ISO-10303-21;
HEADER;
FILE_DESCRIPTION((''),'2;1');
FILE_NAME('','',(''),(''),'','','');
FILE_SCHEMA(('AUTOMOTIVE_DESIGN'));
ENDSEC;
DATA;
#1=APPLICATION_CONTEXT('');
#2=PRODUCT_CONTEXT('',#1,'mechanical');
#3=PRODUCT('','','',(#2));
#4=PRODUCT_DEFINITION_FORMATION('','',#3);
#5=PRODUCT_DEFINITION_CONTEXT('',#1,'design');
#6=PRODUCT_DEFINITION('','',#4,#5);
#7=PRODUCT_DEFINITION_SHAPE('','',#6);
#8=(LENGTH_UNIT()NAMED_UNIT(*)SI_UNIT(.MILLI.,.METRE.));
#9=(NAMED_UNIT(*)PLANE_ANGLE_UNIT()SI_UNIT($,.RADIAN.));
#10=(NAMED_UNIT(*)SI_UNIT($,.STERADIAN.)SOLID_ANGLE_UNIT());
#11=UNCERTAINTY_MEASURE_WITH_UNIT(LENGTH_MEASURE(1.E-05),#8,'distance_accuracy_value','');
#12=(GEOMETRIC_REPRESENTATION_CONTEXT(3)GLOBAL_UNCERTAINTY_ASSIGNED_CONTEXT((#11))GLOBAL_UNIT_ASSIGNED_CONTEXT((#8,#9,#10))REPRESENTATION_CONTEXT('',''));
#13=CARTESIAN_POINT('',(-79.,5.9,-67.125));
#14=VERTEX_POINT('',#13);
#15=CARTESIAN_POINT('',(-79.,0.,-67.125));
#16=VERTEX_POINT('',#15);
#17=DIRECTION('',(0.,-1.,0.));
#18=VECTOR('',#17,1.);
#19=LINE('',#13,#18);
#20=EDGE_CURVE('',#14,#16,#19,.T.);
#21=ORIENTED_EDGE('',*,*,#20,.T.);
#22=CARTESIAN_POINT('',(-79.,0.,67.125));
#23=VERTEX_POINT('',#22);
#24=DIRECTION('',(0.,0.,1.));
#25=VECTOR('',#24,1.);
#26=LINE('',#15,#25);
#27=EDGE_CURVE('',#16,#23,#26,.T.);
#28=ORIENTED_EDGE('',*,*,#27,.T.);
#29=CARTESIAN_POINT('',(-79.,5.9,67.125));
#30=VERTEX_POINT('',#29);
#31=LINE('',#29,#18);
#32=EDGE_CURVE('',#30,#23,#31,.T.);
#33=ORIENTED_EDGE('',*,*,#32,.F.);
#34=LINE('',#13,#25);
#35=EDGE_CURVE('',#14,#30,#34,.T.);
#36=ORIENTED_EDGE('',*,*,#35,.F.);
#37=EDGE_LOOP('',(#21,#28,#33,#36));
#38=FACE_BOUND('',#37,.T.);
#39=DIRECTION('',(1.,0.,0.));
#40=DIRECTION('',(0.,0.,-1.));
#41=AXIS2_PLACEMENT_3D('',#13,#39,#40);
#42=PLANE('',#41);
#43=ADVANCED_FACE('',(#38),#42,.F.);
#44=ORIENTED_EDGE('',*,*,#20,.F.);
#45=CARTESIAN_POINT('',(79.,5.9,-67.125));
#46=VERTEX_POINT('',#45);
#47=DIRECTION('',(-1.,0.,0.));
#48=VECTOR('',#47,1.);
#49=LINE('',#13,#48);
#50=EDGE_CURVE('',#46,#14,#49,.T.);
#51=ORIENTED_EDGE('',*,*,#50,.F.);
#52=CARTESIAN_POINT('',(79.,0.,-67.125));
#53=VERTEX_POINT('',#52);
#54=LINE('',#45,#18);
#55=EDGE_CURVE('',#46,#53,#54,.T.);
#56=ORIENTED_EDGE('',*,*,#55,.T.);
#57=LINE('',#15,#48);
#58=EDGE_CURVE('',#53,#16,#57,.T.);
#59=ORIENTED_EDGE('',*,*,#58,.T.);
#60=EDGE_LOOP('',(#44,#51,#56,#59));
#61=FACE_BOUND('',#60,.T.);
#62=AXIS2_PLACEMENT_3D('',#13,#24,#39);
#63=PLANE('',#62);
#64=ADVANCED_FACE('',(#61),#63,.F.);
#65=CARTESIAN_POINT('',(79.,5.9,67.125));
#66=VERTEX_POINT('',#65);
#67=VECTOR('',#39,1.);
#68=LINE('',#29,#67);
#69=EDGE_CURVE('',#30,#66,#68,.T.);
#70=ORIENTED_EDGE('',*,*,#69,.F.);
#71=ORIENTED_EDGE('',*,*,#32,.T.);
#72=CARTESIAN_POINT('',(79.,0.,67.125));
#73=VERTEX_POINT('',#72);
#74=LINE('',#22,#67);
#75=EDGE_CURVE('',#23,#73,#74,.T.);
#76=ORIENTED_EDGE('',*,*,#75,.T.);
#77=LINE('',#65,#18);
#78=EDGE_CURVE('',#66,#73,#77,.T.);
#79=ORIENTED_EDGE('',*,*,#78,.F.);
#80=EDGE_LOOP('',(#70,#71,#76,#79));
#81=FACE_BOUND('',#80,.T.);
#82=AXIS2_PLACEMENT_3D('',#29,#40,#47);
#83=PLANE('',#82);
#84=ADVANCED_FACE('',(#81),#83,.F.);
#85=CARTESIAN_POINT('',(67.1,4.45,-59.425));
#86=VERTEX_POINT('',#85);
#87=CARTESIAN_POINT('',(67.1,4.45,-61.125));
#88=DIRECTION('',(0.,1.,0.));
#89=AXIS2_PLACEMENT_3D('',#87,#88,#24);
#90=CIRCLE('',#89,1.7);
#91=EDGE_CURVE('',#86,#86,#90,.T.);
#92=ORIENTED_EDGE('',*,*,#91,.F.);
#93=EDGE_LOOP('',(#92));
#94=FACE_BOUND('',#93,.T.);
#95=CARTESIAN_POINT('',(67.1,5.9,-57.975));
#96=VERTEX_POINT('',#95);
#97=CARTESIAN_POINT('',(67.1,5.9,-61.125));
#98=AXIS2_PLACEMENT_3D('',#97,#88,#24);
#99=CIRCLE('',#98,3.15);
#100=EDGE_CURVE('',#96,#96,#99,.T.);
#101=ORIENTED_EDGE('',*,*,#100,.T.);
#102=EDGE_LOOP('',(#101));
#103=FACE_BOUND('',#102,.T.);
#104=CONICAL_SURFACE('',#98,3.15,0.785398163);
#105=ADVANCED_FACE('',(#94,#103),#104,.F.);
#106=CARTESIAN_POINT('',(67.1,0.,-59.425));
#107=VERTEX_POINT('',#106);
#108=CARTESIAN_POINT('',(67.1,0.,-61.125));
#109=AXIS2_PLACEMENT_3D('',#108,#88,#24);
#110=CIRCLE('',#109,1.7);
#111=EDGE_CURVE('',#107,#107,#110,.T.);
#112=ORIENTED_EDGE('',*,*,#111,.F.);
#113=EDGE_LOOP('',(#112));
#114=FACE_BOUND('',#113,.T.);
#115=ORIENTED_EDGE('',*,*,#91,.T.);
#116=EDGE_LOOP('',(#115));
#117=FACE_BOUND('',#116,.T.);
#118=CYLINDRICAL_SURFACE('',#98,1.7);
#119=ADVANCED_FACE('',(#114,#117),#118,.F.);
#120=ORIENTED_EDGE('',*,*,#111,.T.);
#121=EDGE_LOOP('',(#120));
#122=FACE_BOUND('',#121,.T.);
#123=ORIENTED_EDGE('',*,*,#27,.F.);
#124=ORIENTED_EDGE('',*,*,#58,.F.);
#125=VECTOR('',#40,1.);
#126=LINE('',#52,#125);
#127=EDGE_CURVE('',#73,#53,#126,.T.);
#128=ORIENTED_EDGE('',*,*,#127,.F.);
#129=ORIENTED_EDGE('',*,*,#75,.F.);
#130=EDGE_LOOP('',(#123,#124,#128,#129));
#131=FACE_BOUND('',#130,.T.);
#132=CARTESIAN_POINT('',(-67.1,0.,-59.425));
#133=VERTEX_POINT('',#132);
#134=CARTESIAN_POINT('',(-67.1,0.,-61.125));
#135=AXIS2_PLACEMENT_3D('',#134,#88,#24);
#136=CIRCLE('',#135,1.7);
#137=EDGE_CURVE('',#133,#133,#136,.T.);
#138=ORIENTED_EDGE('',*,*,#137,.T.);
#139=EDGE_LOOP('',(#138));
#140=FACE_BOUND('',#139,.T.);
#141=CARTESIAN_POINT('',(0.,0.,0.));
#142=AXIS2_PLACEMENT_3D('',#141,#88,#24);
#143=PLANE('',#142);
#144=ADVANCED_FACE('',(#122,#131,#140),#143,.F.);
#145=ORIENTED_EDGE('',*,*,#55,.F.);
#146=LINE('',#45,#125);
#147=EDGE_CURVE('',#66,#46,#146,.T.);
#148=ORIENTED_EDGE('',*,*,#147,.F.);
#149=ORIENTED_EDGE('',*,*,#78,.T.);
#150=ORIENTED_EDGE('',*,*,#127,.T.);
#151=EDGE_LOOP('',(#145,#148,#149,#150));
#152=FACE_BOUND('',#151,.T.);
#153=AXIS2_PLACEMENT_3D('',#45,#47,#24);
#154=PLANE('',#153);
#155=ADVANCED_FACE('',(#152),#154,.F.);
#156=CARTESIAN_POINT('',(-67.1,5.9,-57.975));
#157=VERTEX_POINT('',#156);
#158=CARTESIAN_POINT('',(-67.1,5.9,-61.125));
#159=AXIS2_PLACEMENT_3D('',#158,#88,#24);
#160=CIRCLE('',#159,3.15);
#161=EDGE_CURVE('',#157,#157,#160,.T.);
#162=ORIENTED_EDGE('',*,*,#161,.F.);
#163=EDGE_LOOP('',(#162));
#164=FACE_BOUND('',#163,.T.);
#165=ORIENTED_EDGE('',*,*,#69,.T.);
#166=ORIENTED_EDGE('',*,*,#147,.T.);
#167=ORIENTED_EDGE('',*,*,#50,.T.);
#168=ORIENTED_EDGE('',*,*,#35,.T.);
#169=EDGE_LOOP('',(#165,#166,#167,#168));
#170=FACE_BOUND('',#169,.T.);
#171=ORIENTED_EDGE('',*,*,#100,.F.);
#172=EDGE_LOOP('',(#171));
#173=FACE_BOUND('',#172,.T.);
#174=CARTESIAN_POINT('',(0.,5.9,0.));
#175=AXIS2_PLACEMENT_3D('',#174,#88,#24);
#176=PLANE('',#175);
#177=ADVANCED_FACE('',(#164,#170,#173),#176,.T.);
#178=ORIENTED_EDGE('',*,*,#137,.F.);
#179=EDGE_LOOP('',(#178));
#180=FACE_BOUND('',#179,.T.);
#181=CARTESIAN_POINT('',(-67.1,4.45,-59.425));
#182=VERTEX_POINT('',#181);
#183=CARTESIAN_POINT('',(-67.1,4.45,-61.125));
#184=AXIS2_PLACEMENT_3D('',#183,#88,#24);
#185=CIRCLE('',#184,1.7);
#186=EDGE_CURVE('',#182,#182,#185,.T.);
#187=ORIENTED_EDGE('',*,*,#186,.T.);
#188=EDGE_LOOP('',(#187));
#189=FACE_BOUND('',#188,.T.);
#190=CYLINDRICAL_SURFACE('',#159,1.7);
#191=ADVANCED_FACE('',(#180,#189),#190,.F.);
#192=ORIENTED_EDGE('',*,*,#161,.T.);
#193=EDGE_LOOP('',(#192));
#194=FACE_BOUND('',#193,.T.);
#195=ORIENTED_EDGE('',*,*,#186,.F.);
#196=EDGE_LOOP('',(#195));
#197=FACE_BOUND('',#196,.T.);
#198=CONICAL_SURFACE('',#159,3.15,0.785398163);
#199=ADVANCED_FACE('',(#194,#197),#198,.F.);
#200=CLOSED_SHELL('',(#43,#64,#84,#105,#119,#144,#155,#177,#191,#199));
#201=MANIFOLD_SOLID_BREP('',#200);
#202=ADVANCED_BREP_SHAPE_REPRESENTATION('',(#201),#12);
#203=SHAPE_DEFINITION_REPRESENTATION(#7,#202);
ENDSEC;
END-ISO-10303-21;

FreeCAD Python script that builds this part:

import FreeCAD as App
import Part
import Sketcher


def add_polygon(sketch, points):
    """Adds a closed chain of lines whose ends are joined by coincident constraints."""
    first, n = sketch.GeometryCount, len(points)
    for a, b in zip(points, points[1:] + points[:1]):
        sketch.addGeometry(Part.LineSegment(App.Vector(*a, 0), App.Vector(*b, 0)), False)
    for i in range(n):
        sketch.addConstraint(Sketcher.Constraint("Coincident", first + i, 2, first + (i + 1) % n, 1))

doc = App.newDocument("Part")
body = doc.addObject("PartDesign::Body", "Body")

sketch1 = body.newObject("Sketcher::SketchObject", "Sketch")
sketch1.AttachmentSupport = (doc.getObject("XZ_Plane"), [""])
sketch1.MapMode = "FlatFace"
add_polygon(sketch1, [(-79, -67.125), (-79, 67.125), (79, 67.125), (79, -67.125)])
sketch1.addConstraint(Sketcher.Constraint("Vertical", 0))
sketch1.addConstraint(Sketcher.Constraint("Horizontal", 1))
sketch1.addConstraint(Sketcher.Constraint("Vertical", 2))
sketch1.addConstraint(Sketcher.Constraint("Horizontal", 3))
sketch1.addConstraint(Sketcher.Constraint("Symmetric", 0, 2, 2, 2, -1, 1))
sketch1.addConstraint(Sketcher.Constraint("DistanceX", 1, 1, 1, 2, 158.0))
sketch1.addConstraint(Sketcher.Constraint("DistanceY", 0, 1, 0, 2, 134.25))
pad1 = body.newObject("PartDesign::Pad", "Pad")
pad1.Profile = sketch1
pad1.Length = 5.9
pad1.Reversed = True

sketch2 = body.newObject("Sketcher::SketchObject", "Sketch001")
sketch2.AttachmentSupport = (doc.getObject("XZ_Plane"), [""])
sketch2.MapMode = "FlatFace"
sketch2.AttachmentOffset = App.Placement(App.Vector(0, 0, -5.9), App.Rotation())
sketch2.addGeometry(Part.Circle(App.Vector(-67.1, -61.125, 0), App.Vector(0, 0, 1), 1.7), False)
sketch2.addGeometry(Part.Circle(App.Vector(67.1, -61.125, 0), App.Vector(0, 0, 1), 1.7), False)
sketch2.addConstraint(Sketcher.Constraint("Equal", 0, 1))
sketch2.addConstraint(Sketcher.Constraint("Symmetric", 0, 3, 1, 3, -2))
sketch2.addConstraint(Sketcher.Constraint("Diameter", 0, 3.4))
sketch2.addConstraint(Sketcher.Constraint("DistanceX", 0, 3, -1, 1, 67.1))
sketch2.addConstraint(Sketcher.Constraint("DistanceY", 0, 3, -1, 1, 61.125))
doc.recompute()
hole = body.newObject("PartDesign::Hole", "Hole")
hole.Profile = sketch2
hole.ThreadType = "None"
hole.Diameter = 3.4
hole.DepthType = "Dimension"
hole.Depth = 10
hole.DrillPoint = "Angled"
hole.DrillPointAngle = 118
hole.HoleCutType = "Countersink"
hole.HoleCutDiameter = 6.3
hole.HoleCutCountersinkAngle = 90
hole.Reversed = True

doc.recompute()
